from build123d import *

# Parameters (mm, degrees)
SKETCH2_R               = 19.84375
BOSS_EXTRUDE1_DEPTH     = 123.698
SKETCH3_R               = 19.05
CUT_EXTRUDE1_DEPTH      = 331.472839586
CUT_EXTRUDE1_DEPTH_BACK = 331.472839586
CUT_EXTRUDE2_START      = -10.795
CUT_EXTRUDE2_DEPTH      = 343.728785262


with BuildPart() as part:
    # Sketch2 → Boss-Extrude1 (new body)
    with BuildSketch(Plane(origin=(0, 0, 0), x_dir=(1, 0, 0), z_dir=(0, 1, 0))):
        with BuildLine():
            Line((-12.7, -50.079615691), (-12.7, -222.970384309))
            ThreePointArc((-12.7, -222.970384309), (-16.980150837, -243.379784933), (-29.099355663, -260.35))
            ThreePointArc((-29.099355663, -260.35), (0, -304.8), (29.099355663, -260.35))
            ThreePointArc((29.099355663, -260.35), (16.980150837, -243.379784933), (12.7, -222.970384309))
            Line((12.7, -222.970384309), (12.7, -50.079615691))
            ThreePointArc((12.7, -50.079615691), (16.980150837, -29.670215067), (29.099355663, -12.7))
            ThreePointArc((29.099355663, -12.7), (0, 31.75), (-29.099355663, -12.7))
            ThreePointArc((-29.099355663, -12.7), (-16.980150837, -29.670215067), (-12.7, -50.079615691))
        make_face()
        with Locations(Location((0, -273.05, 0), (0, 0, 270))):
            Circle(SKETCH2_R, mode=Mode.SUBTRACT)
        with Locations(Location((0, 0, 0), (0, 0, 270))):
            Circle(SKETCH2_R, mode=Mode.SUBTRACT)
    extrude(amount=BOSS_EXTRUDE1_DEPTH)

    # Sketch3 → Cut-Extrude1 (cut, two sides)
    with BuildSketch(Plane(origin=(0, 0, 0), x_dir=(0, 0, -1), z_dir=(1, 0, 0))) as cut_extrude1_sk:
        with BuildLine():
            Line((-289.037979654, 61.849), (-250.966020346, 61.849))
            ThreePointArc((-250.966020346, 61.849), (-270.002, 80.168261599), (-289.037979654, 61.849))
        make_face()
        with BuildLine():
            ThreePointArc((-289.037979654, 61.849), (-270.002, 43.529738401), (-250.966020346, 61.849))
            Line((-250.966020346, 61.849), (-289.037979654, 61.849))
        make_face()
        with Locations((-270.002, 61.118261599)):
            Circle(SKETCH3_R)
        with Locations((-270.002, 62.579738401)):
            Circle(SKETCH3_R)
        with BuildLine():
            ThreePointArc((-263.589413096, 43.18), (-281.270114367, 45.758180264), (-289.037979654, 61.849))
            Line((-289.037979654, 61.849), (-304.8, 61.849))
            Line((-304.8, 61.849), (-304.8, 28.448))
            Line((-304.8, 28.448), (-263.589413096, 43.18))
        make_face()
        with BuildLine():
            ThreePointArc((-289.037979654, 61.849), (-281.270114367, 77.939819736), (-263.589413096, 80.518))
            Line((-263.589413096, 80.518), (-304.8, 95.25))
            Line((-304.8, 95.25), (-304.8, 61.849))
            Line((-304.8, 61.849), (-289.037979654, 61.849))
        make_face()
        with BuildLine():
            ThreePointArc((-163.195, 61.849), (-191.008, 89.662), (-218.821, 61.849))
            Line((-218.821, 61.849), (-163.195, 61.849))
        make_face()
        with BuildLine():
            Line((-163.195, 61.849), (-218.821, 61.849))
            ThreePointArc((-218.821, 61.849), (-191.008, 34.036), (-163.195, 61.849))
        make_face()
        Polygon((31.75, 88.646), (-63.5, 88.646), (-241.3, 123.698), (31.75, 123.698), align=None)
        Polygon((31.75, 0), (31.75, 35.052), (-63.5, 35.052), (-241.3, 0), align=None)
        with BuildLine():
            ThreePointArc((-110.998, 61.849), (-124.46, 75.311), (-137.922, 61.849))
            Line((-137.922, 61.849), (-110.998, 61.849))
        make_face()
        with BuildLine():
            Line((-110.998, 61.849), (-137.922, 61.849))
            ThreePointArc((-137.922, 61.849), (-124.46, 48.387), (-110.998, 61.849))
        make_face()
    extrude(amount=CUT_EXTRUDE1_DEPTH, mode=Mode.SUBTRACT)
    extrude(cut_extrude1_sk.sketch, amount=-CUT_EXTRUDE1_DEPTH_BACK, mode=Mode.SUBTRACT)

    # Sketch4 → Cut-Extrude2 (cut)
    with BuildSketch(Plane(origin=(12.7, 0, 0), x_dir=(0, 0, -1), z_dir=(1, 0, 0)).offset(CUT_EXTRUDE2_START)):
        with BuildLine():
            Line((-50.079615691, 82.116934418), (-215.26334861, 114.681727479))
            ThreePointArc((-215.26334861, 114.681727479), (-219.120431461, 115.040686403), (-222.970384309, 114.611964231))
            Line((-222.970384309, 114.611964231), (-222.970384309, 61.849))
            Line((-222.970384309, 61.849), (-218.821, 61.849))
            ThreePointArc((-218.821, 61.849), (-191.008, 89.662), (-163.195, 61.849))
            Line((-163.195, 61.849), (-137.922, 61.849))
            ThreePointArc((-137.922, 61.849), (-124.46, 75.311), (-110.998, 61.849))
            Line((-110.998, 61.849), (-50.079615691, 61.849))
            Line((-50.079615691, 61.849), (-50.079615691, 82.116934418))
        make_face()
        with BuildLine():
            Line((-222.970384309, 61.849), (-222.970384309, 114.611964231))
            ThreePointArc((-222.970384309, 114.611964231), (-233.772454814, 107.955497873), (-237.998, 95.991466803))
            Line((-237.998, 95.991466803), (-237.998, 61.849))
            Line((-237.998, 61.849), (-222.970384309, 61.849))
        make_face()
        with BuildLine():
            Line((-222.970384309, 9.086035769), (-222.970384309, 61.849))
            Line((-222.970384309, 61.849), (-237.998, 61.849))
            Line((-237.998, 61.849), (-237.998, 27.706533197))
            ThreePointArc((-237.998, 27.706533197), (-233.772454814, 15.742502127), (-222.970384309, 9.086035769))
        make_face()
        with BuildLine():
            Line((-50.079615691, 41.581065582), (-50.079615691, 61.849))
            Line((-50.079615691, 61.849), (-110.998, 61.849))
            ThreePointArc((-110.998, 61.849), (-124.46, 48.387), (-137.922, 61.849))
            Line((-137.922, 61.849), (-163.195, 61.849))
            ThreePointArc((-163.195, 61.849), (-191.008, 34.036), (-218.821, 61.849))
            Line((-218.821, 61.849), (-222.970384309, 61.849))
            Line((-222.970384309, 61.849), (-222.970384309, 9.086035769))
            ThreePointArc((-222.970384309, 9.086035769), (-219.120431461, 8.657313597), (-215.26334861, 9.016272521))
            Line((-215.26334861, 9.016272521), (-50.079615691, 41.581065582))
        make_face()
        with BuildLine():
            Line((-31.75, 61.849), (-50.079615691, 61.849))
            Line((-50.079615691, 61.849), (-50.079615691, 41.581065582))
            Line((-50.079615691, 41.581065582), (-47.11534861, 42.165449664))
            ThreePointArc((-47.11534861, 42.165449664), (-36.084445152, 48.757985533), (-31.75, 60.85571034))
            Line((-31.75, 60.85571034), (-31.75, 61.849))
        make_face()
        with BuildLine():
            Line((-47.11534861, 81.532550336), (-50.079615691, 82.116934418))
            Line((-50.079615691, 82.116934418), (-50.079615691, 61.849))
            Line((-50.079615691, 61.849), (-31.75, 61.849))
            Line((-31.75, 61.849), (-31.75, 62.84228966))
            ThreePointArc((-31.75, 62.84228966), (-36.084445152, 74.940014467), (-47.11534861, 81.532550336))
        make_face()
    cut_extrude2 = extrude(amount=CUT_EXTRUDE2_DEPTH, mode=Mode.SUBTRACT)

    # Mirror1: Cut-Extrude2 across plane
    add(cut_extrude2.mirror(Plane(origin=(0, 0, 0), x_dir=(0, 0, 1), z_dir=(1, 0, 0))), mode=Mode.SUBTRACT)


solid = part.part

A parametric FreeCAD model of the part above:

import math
import FreeCAD as App
import Part
import Sketcher
from FreeCAD import Vector
Q = App.Units.Quantity

doc = App.newDocument("Part")
body = doc.addObject("PartDesign::Body", "Body")

# Sketch on XZ plane
sketch1 = doc.addObject("Sketcher::SketchObject", "Sketch")
body.addObject(sketch1)
sketch1.AttachmentSupport = (doc.XZ_Plane, [""])
sketch1.MapMode = "FlatFace"
sketch1.addGeometry([
    Part.LineSegment(Vector(-12.7, 50.079616, 0), Vector(-12.7, 222.970384, 0)),  # 0
    Part.ArcOfCircle(Part.Circle(Vector(-63.5, 222.970384, 0), Vector(0, 0, 1), 50.8), math.radians(0), math.radians(47.376483)),  # 1
    Part.ArcOfCircle(Part.Circle(Vector(0, 273.05, 0), Vector(0, 0, 1), 31.75), math.radians(-23.578178), math.radians(203.578178)),  # 2
    Part.ArcOfCircle(Part.Circle(Vector(63.5, 222.970384, 0), Vector(0, 0, 1), 50.8), math.radians(132.623517), math.radians(180)),  # 3
    Part.LineSegment(Vector(12.7, 222.970384, 0), Vector(12.7, 50.079616, 0)),  # 4
    Part.ArcOfCircle(Part.Circle(Vector(63.5, 50.079616, 0), Vector(0, 0, 1), 50.8), math.radians(-180), math.radians(-132.623517)),  # 5
    Part.ArcOfCircle(Part.Circle(Vector(0, 0, 0), Vector(0, 0, 1), 31.75), math.radians(156.421822), math.radians(383.578178)),  # 6
    Part.ArcOfCircle(Part.Circle(Vector(-63.5, 50.079616, 0), Vector(0, 0, 1), 50.8), math.radians(-47.376483), math.radians(0)),  # 7
    Part.Circle(Vector(0, 273.05, 0), Vector(0, 0, 1), 19.84375),  # 8
    Part.Circle(Vector(0, 0, 0), Vector(0, 0, 1), 19.84375),  # 9
], False)
sketch1.addConstraint([
    Sketcher.Constraint("Tangent", 0, 2, 1, 1),
    Sketcher.Constraint("Coincident", 1, 2, 2, 2),
    Sketcher.Constraint("Coincident", 2, 1, 3, 1),
    Sketcher.Constraint("Tangent", 3, 2, 4, 1),
    Sketcher.Constraint("Tangent", 4, 2, 5, 1),
    Sketcher.Constraint("Coincident", 5, 2, 6, 2),
    Sketcher.Constraint("Coincident", 6, 1, 7, 1),
    Sketcher.Constraint("Tangent", 7, 2, 0, 1),
    Sketcher.Constraint("Vertical", 0),
    Sketcher.Constraint("Vertical", 4),
    Sketcher.Constraint("Coincident", 6, 3, -1, 1),
    Sketcher.Constraint("Coincident", 9, 3, -1, 1),
    Sketcher.Constraint("Coincident", 8, 3, 2, 3),
    Sketcher.Constraint("Equal", 1, 3),
    Sketcher.Constraint("Equal", 3, 5),
    Sketcher.Constraint("Equal", 2, 6),
    Sketcher.Constraint("Equal", 5, 7),
    Sketcher.Constraint("Equal", 8, 9),
    Sketcher.Constraint("Symmetric", 1, 3, 3, 3, -2),
    Sketcher.Constraint("PointOnObject", 2, 3, -2),
    Sketcher.Constraint("Horizontal", 5, 3, 7, 3),
    Sketcher.Constraint("Vertical", 2, 1, 5, 2),
    Sketcher.Constraint("Radius", 1, Q("2 in")),
    Sketcher.Constraint("Radius", 2, Q("1.25 in")),
    Sketcher.Constraint("Diameter", 8, Q("1.5625 in")),
    Sketcher.Constraint("DistanceX", 1, 3, 3, 3, Q("5 in")),
    Sketcher.Constraint("DistanceY", -1, 1, 5, 2, Q("0.5 in")),
    Sketcher.Constraint("DistanceY", -1, 1, 2, 3, Q("10.75 in")),
])
pad1 = doc.addObject("PartDesign::Pad", "Pad")
body.addObject(pad1)
pad1.Profile = sketch1
pad1.Length = Q("4.87 in")
pad1.Reversed = True

# Sketch on YZ plane
sketch2 = doc.addObject("Sketcher::SketchObject", "Sketch001")
body.addObject(sketch2)
sketch2.AttachmentSupport = (doc.YZ_Plane, [""])
sketch2.MapMode = "FlatFace"
sketch2.addGeometry([
    Part.LineSegment(Vector(95.25, 304.8, 0), Vector(28.448, 304.8, 0)),  # 0
    Part.LineSegment(Vector(28.448, 304.8, 0), Vector(43.18, 263.589413, 0)),  # 1
    Part.ArcOfCircle(Part.Circle(Vector(61.118262, 270.002, 0), Vector(0, 0, 1), 19.05), math.radians(-160.328998), math.radians(-87.801654)),  # 2
    Part.ArcOfCircle(Part.Circle(Vector(62.579738, 270.002, 0), Vector(0, 0, 1), 19.05), math.radians(-92.198346), math.radians(-19.671002)),  # 3
    Part.LineSegment(Vector(80.518, 263.589413, 0), Vector(95.25, 304.8, 0)),  # 4
    Part.Circle(Vector(61.849, 191.008, 0), Vector(0, 0, 1), 27.813),  # 5
    Part.LineSegment(Vector(88.646, 63.5, 0), Vector(88.646, -31.75, 0)),  # 6
    Part.LineSegment(Vector(88.646, -31.75, 0), Vector(123.698, -31.75, 0)),  # 7
    Part.LineSegment(Vector(123.698, -31.75, 0), Vector(123.698, 241.3, 0)),  # 8
    Part.LineSegment(Vector(123.698, 241.3, 0), Vector(88.646, 63.5, 0)),  # 9
    Part.LineSegment(Vector(0, -31.75, 0), Vector(35.052, -31.75, 0)),  # 10
    Part.LineSegment(Vector(35.052, -31.75, 0), Vector(35.052, 63.5, 0)),  # 11
    Part.LineSegment(Vector(35.052, 63.5, 0), Vector(0, 241.3, 0)),  # 12
    Part.LineSegment(Vector(0, 241.3, 0), Vector(0, -31.75, 0)),  # 13
    Part.Circle(Vector(61.849, 124.46, 0), Vector(0, 0, 1), 13.462),  # 14
], False)
sketch2.addConstraint([
    Sketcher.Constraint("Coincident", 0, 2, 1, 1),
    Sketcher.Constraint("Tangent", 1, 2, 2, 1),
    Sketcher.Constraint("Coincident", 2, 2, 3, 1),
    Sketcher.Constraint("Tangent", 3, 2, 4, 1),
    Sketcher.Constraint("Coincident", 4, 2, 0, 1),
    Sketcher.Constraint("Coincident", 6, 2, 7, 1),
    Sketcher.Constraint("Coincident", 7, 2, 8, 1),
    Sketcher.Constraint("Coincident", 8, 2, 9, 1),
    Sketcher.Constraint("Coincident", 9, 2, 6, 1),
    Sketcher.Constraint("Coincident", 10, 2, 11, 1),
    Sketcher.Constraint("Coincident", 11, 2, 12, 1),
    Sketcher.Constraint("Coincident", 12, 2, 13, 1),
    Sketcher.Constraint("Coincident", 13, 2, 10, 1),
    Sketcher.Constraint("Horizontal", 0),
    Sketcher.Constraint("Vertical", 6),
    Sketcher.Constraint("Horizontal", 7),
    Sketcher.Constraint("Vertical", 8),
    Sketcher.Constraint("Horizontal", 10),
    Sketcher.Constraint("Vertical", 11),
    Sketcher.Constraint("Vertical", 13),
    Sketcher.Constraint("Equal", 2, 3),
    Sketcher.Constraint("PointOnObject", 12, 2, -2),
    Sketcher.Constraint("Horizontal", 2, 3, 3, 3),
    Sketcher.Constraint("Horizontal", 1, 2, 3, 2),
    Sketcher.Constraint("Horizontal", 7, 2, 10, 2),
    Sketcher.Constraint("Horizontal", 9, 2, 11, 2),
    Sketcher.Constraint("Horizontal", 8, 2, 12, 2),
    Sketcher.Constraint("Vertical", 5, 3, 14, 3),
    Sketcher.Constraint("Vertical", 14, 3, 2, 2),
    Sketcher.Constraint("Equal", 7, 10),
    Sketcher.Constraint("Diameter", 5, Q("2.19 in")),
    Sketcher.Constraint("Diameter", 14, Q("1.06 in")),
    Sketcher.Constraint("Radius", 2, Q("0.75 in")),
    Sketcher.Constraint("DistanceY", -1, 1, 0, 2, Q("12 in")),
    Sketcher.Constraint("DistanceY", 9, 2, 8, 2, Q("7 in")),
    Sketcher.Constraint("DistanceX", 0, 2, 0, 1, Q("2.63 in")),
    Sketcher.Constraint("DistanceX", 7, 1, 7, 2, Q("1.38 in")),
    Sketcher.Constraint("DistanceY", 6, 2, 6, 1, Q("3.75 in")),
    Sketcher.Constraint("DistanceY", -1, 1, 14, 3, Q("4.9 in")),
    Sketcher.Constraint("DistanceX", -1, 1, 1, 2, Q("1.7 in")),
    Sketcher.Constraint("DistanceY", -1, 1, 8, 2, Q("9.5 in")),
    Sketcher.Constraint("DistanceX", 3, 2, 7, 2, Q("1.7 in")),
    Sketcher.Constraint("DistanceY", -1, 1, 2, 3, Q("10.63 in")),
    Sketcher.Constraint("DistanceY", -1, 1, 5, 3, Q("7.52 in")),
    Sketcher.Constraint("DistanceX", -1, 1, 0, 2, Q("1.12 in")),
])
pocket1 = doc.addObject("PartDesign::Pocket", "Pocket")
body.addObject(pocket1)
pocket1.Profile = sketch2
pocket1.Type = "ThroughAll"
pocket1.Midplane = True

# Sketch on YZ plane
sketch3 = doc.addObject("Sketcher::SketchObject", "Sketch002")
body.addObject(sketch3)
sketch3.AttachmentSupport = (doc.YZ_Plane, [""])
sketch3.MapMode = "FlatFace"
sketch3.AttachmentOffset = App.Placement(Vector(0, 0, 0.075 * 25.4), App.Rotation())
sketch3.addGeometry([
    Part.LineSegment(Vector(82.116934, 50.079616, 0), Vector(114.681727, 215.263349, 0)),  # 0
    Part.ArcOfCircle(Part.Circle(Vector(95.991467, 218.948, 0), Vector(0, 0, 1), 19.05), math.radians(-11.15244), math.radians(12.189682)),  # 1
    Part.ArcOfCircle(Part.Circle(Vector(95.991467, 218.948, 0), Vector(0, 0, 1), 19.05), math.radians(12.189682), math.radians(90)),  # 2
    Part.LineSegment(Vector(95.991467, 237.998, 0), Vector(27.706533, 237.998, 0)),  # 3
    Part.ArcOfCircle(Part.Circle(Vector(27.706533, 218.948, 0), Vector(0, 0, 1), 19.05), math.radians(90), math.radians(167.810318)),  # 4
    Part.ArcOfCircle(Part.Circle(Vector(27.706533, 218.948, 0), Vector(0, 0, 1), 19.05), math.radians(167.810318), math.radians(191.15244)),  # 5
    Part.LineSegment(Vector(9.016273, 215.263349, 0), Vector(41.581066, 50.079616, 0)),  # 6
    Part.LineSegment(Vector(41.581066, 50.079616, 0), Vector(42.16545, 47.115349, 0)),  # 7
    Part.ArcOfCircle(Part.Circle(Vector(60.85571, 50.8, 0), Vector(0, 0, 1), 19.05), math.radians(-168.84756), math.radians(-90)),  # 8
    Part.LineSegment(Vector(60.85571, 31.75, 0), Vector(62.84229, 31.75, 0)),  # 9
    Part.ArcOfCircle(Part.Circle(Vector(62.84229, 50.8, 0), Vector(0, 0, 1), 19.05), math.radians(-90), math.radians(-11.15244)),  # 10
    Part.LineSegment(Vector(81.53255, 47.115349, 0), Vector(82.116934, 50.079616, 0)),  # 11
    Part.Circle(Vector(61.849, 191.008, 0), Vector(0, 0, 1), 27.813),  # 12
    Part.Circle(Vector(61.849, 124.46, 0), Vector(0, 0, 1), 13.462),  # 13
], False)
sketch3.addConstraint([
    Sketcher.Constraint("Coincident", 0, 2, 1, 1),
    Sketcher.Constraint("Coincident", 1, 2, 2, 1),
    Sketcher.Constraint("Coincident", 2, 2, 3, 1),
    Sketcher.Constraint("Coincident", 3, 2, 4, 1),
    Sketcher.Constraint("Coincident", 4, 2, 5, 1),
    Sketcher.Constraint("Coincident", 5, 2, 6, 1),
    Sketcher.Constraint("Coincident", 6, 2, 7, 1),
    Sketcher.Constraint("Coincident", 7, 2, 8, 1),
    Sketcher.Constraint("Coincident", 8, 2, 9, 1),
    Sketcher.Constraint("Coincident", 9, 2, 10, 1),
    Sketcher.Constraint("Coincident", 10, 2, 11, 1),
    Sketcher.Constraint("Coincident", 11, 2, 0, 1),
    Sketcher.Constraint("Horizontal", 3),
    Sketcher.Constraint("Horizontal", 9),
    Sketcher.Constraint("Coincident", 2, 3, 1, 3),
    Sketcher.Constraint("Coincident", 5, 3, 4, 3),
    Sketcher.Constraint("Diameter", 12, Q("2.19 in")),
    Sketcher.Constraint("Diameter", 13, Q("1.06 in")),
    Sketcher.Constraint("Radius", 1, Q("0.75 in")),
    Sketcher.Constraint("Radius", 4, Q("0.75 in")),
    Sketcher.Constraint("Radius", 8, Q("0.75 in")),
    Sketcher.Constraint("Radius", 10, Q("0.75 in")),
    Sketcher.Constraint("DistanceY", -1, 1, 8, 3, Q("2 in")),
    Sketcher.Constraint("DistanceY", -1, 1, 13, 3, Q("4.9 in")),
    Sketcher.Constraint("DistanceY", 12, 3, 1, 3, Q("1.1 in")),
    Sketcher.Constraint("DistanceY", -1, 1, 1, 3, Q("8.62 in")),
    Sketcher.Constraint("DistanceX", -1, 1, 12, 3, Q("2.435 in")),
    Sketcher.Constraint("DistanceX", -1, 1, 13, 3, Q("2.435 in")),
    Sketcher.Constraint("DistanceX", 9, 1, 9, 2, Q("1.986579 mm")),
    Sketcher.Constraint("DistanceX", 7, 2, 10, 2, Q("39.367101 mm")),
    Sketcher.Constraint("Distance", 7, Q("3.021322 mm")),
    Sketcher.Constraint("Distance", 11, Q("3.021322 mm")),
    Sketcher.Constraint("DistanceX", 3, 2, 3, 1, Q("68.284934 mm")),
    Sketcher.Constraint("DistanceX", -1, 1, 8, 3, Q("60.85571 mm")),
    Sketcher.Constraint("DistanceX", -1, 1, 10, 3, Q("62.84229 mm")),
    Sketcher.Constraint("DistanceY", -1, 1, 0, 2, Q("215.263349 mm")),
    Sketcher.Constraint("DistanceY", -1, 1, 5, 2, Q("215.263349 mm")),
    Sketcher.Constraint("DistanceX", -1, 1, 7, 2, Q("42.16545 mm")),
    Sketcher.Constraint("DistanceX", -1, 1, 8, 2, Q("60.85571 mm")),
    Sketcher.Constraint("DistanceX", 5, 3, 1, 2, Q("86.905431 mm")),
    Sketcher.Constraint("DistanceX", 2, 2, 0, 2, Q("18.690261 mm")),
    Sketcher.Constraint("DistanceX", 4, 2, 1, 3, Q("86.905431 mm")),
    Sketcher.Constraint("DistanceX", 5, 2, 3, 2, Q("18.690261 mm")),
    Sketcher.Constraint("Distance", 0, Q("168.363094 mm")),
    Sketcher.Constraint("DistanceX", -1, 1, 6, 2, Q("41.581066 mm")),
    Sketcher.Constraint("DistanceX", -1, 1, 11, 2, Q("82.116934 mm")),
])
pocket2 = doc.addObject("PartDesign::Pocket", "Pocket001")
body.addObject(pocket2)
pocket2.Profile = sketch3
pocket2.Length = 343.728785
pocket2.Reversed = True
doc.recompute()

mirrored = doc.addObject("PartDesign::Mirrored", "Mirrored")
body.addObject(mirrored)
mirrored.Originals = [pocket2]
mirrored.MirrorPlane = (doc.YZ_Plane, [""])
body.Tip = mirrored

doc.recompute()
